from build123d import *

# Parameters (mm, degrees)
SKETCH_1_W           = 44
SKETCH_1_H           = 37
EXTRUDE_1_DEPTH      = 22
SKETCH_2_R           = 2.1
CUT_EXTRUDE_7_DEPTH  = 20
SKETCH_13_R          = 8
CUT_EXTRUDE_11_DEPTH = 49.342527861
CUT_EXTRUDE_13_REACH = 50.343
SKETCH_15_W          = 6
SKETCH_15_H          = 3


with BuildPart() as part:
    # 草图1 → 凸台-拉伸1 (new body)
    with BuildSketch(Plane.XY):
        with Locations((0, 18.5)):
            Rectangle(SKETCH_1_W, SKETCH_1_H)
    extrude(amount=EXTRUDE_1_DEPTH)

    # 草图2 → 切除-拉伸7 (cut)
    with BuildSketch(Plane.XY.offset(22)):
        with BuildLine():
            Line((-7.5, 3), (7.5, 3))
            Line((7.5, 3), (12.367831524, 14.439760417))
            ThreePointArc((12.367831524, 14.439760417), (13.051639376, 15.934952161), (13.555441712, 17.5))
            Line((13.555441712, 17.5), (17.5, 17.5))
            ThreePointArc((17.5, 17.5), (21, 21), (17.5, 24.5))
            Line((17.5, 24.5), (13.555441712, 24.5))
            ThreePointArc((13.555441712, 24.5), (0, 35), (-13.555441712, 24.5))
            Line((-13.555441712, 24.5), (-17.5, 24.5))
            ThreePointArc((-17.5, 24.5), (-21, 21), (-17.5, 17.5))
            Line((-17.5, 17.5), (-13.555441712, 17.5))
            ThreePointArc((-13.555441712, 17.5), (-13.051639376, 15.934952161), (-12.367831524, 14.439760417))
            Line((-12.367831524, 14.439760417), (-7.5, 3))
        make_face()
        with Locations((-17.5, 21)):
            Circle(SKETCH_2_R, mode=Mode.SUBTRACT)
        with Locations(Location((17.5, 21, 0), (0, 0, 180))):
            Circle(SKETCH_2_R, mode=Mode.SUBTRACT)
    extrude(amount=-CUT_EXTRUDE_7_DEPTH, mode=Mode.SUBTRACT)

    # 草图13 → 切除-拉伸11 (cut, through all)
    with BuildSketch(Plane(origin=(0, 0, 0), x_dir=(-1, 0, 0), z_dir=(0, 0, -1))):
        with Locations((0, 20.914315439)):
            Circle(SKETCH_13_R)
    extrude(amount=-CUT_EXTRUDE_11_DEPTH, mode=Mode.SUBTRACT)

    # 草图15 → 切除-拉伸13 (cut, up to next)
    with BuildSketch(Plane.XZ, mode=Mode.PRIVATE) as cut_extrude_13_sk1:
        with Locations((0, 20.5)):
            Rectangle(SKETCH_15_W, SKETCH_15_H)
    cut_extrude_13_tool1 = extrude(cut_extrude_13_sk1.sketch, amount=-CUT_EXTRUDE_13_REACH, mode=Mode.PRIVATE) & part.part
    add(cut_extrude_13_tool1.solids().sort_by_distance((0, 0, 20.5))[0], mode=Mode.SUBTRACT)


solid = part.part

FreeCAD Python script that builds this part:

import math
import FreeCAD as App
import Part
import Sketcher
from FreeCAD import Vector
Q = App.Units.Quantity


def add_polygon(sketch, points):
    """Adds a closed chain of lines whose ends are joined by coincident constraints."""
    first, n = sketch.GeometryCount, len(points)
    for a, b in zip(points, points[1:] + points[:1]):
        sketch.addGeometry(Part.LineSegment(App.Vector(*a, 0), App.Vector(*b, 0)), False)
    for i in range(n):
        sketch.addConstraint(Sketcher.Constraint("Coincident", first + i, 2, first + (i + 1) % n, 1))

doc = App.newDocument("Part")
body = doc.addObject("PartDesign::Body", "Body")

# Sketch on XY plane
sketch1 = body.newObject("Sketcher::SketchObject", "Sketch")
sketch1.AttachmentSupport = (doc.getObject("XY_Plane"), [""])
sketch1.MapMode = "FlatFace"
add_polygon(sketch1, [(-22, 37), (-22, 0), (22, 0), (22, 37)])  # lines 0-3
sketch1.addConstraint([
    Sketcher.Constraint("Vertical", 0),
    Sketcher.Constraint("Horizontal", 1),
    Sketcher.Constraint("Vertical", 2),
    Sketcher.Constraint("Horizontal", 3),
    Sketcher.Constraint("Symmetric", 0, 2, 1, 2, -1, 1),
    Sketcher.Constraint("DistanceX", 1, 1, 1, 2, Q("44 mm")),
    Sketcher.Constraint("DistanceY", 0, 2, 0, 1, Q("37 mm")),
])
pad1 = body.newObject("PartDesign::Pad", "Pad")
pad1.Profile = sketch1
pad1.Length = 22

# Sketch on XY plane
sketch2 = body.newObject("Sketcher::SketchObject", "Sketch001")
sketch2.AttachmentSupport = (doc.getObject("XY_Plane"), [""])
sketch2.MapMode = "FlatFace"
sketch2.AttachmentOffset = App.Placement(Vector(0, 0, 22), App.Rotation())
sketch2.addGeometry([
    Part.LineSegment(Vector(-7.5, 3, 0), Vector(7.5, 3, 0)),  # 0
    Part.LineSegment(Vector(7.5, 3, 0), Vector(12.4, 14.4, 0)),  # 1
    Part.ArcOfCircle(Part.Circle(Vector(0, 21, 0), Vector(0, 0, 1), 14), math.radians(-27.94), math.radians(-14.48)),  # 2
    Part.LineSegment(Vector(13.6, 17.5, 0), Vector(17.5, 17.5, 0)),  # 3
    Part.ArcOfCircle(Part.Circle(Vector(17.5, 21, 0), Vector(0, 0, 1), 3.5), math.radians(-90), math.radians(90)),  # 4
    Part.LineSegment(Vector(17.5, 24.5, 0), Vector(13.6, 24.5, 0)),  # 5
    Part.ArcOfCircle(Part.Circle(Vector(0, 21, 0), Vector(0, 0, 1), 14), math.radians(14), math.radians(166)),  # 6
    Part.LineSegment(Vector(-13.6, 24.5, 0), Vector(-17.5, 24.5, 0)),  # 7
    Part.ArcOfCircle(Part.Circle(Vector(-17.5, 21, 0), Vector(0, 0, 1), 3.5), math.radians(90), math.radians(270)),  # 8
    Part.LineSegment(Vector(-17.5, 17.5, 0), Vector(-13.6, 17.5, 0)),  # 9
    Part.ArcOfCircle(Part.Circle(Vector(0, 21, 0), Vector(0, 0, 1), 14), math.radians(-165.52), math.radians(-152.06)),  # 10
    Part.LineSegment(Vector(-12.4, 14.4, 0), Vector(-7.5, 3, 0)),  # 11
    Part.Circle(Vector(-17.5, 21, 0), Vector(0, 0, 1), 2.1),  # 12
    Part.Circle(Vector(17.5, 21, 0), Vector(0, 0, 1), 2.1),  # 13
], False)
sketch2.addConstraint([
    Sketcher.Constraint("Coincident", 0, 2, 1, 1),
    Sketcher.Constraint("Coincident", 1, 2, 2, 1),
    Sketcher.Constraint("Coincident", 2, 2, 3, 1),
    Sketcher.Constraint("Tangent", 3, 2, 4, 1),
    Sketcher.Constraint("Tangent", 4, 2, 5, 1),
    Sketcher.Constraint("Coincident", 5, 2, 6, 1),
    Sketcher.Constraint("Coincident", 6, 2, 7, 1),
    Sketcher.Constraint("Tangent", 7, 2, 8, 1),
    Sketcher.Constraint("Tangent", 8, 2, 9, 1),
    Sketcher.Constraint("Coincident", 9, 2, 10, 1),
    Sketcher.Constraint("Coincident", 10, 2, 11, 1),
    Sketcher.Constraint("Coincident", 11, 2, 0, 1),
    Sketcher.Constraint("Horizontal", 0),
    Sketcher.Constraint("Horizontal", 3),
    Sketcher.Constraint("Horizontal", 5),
    Sketcher.Constraint("Horizontal", 7),
    Sketcher.Constraint("Horizontal", 9),
    Sketcher.Constraint("Coincident", 6, 3, 2, 3),
    Sketcher.Constraint("Coincident", 10, 3, 2, 3),
    Sketcher.Constraint("Coincident", 12, 3, 8, 3),
    Sketcher.Constraint("Coincident", 13, 3, 4, 3),
    Sketcher.Constraint("Equal", 2, 6),
    Sketcher.Constraint("Equal", 4, 8),
    Sketcher.Constraint("Equal", 6, 10),
    Sketcher.Constraint("Equal", 12, 13),
    Sketcher.Constraint("Symmetric", 4, 3, 8, 3, -2),
    Sketcher.Constraint("Symmetric", 1, 2, 10, 2, -2),
    Sketcher.Constraint("Horizontal", 2, 3, 4, 3),
    Sketcher.Constraint("Equal", 1, 11),
    Sketcher.Constraint("Radius", 2, Q("14 mm")),
    Sketcher.Constraint("Diameter", 12, Q("4.2 mm")),
    Sketcher.Constraint("Radius", 4, Q("3.5 mm")),
    Sketcher.Constraint("DistanceX", 0, 1, 0, 2, Q("15 mm")),
    Sketcher.Constraint("DistanceY", -1, 1, 2, 3, Q("21 mm")),
    Sketcher.Constraint("DistanceY", -1, 1, 0, 2, Q("3 mm")),
    Sketcher.Constraint("DistanceX", 8, 3, 4, 3, Q("35 mm")),
    Sketcher.Constraint("DistanceX", -1, 1, 1, 2, Q("12.367832 mm")),
])
pocket1 = body.newObject("PartDesign::Pocket", "Pocket")
pocket1.Profile = sketch2
pocket1.Length = 20

# Sketch on XY plane
sketch3 = body.newObject("Sketcher::SketchObject", "Sketch002")
sketch3.AttachmentSupport = (doc.getObject("XY_Plane"), [""])
sketch3.MapMode = "FlatFace"
sketch3.addGeometry(Part.Circle(Vector(0, 21, 0), Vector(0, 0, 1), 8), False)
sketch3.addConstraint([
    Sketcher.Constraint("PointOnObject", 0, 3, -2),
    Sketcher.Constraint("Diameter", 0, Q("16 mm")),
    Sketcher.Constraint("DistanceY", -1, 1, 0, 3, Q("20.914315 mm")),
])
pocket2 = body.newObject("PartDesign::Pocket", "Pocket001")
pocket2.Profile = sketch3
pocket2.Type = "ThroughAll"
pocket2.Reversed = True

# Sketch on XZ plane
sketch4 = body.newObject("Sketcher::SketchObject", "Sketch003")
sketch4.AttachmentSupport = (doc.getObject("XZ_Plane"), [""])
sketch4.MapMode = "FlatFace"
add_polygon(sketch4, [(-3, 22), (-3, 19), (3, 19), (3, 22)])  # lines 0-3
sketch4.addConstraint([
    Sketcher.Constraint("Vertical", 0),
    Sketcher.Constraint("Horizontal", 1),
    Sketcher.Constraint("Vertical", 2),
    Sketcher.Constraint("Horizontal", 3),
    Sketcher.Constraint("DistanceX", 1, 1, 1, 2, Q("6 mm")),
    Sketcher.Constraint("DistanceY", 0, 2, 0, 1, Q("3 mm")),
    Sketcher.Constraint("DistanceX", 0, 2, -1, 1, Q("3 mm")),
    Sketcher.Constraint("DistanceY", -1, 1, 0, 2, Q("19 mm")),
])
pocket3 = body.newObject("PartDesign::Pocket", "Pocket002")
pocket3.Profile = sketch4
pocket3.Type = "UpToFirst"

doc.recompute()
